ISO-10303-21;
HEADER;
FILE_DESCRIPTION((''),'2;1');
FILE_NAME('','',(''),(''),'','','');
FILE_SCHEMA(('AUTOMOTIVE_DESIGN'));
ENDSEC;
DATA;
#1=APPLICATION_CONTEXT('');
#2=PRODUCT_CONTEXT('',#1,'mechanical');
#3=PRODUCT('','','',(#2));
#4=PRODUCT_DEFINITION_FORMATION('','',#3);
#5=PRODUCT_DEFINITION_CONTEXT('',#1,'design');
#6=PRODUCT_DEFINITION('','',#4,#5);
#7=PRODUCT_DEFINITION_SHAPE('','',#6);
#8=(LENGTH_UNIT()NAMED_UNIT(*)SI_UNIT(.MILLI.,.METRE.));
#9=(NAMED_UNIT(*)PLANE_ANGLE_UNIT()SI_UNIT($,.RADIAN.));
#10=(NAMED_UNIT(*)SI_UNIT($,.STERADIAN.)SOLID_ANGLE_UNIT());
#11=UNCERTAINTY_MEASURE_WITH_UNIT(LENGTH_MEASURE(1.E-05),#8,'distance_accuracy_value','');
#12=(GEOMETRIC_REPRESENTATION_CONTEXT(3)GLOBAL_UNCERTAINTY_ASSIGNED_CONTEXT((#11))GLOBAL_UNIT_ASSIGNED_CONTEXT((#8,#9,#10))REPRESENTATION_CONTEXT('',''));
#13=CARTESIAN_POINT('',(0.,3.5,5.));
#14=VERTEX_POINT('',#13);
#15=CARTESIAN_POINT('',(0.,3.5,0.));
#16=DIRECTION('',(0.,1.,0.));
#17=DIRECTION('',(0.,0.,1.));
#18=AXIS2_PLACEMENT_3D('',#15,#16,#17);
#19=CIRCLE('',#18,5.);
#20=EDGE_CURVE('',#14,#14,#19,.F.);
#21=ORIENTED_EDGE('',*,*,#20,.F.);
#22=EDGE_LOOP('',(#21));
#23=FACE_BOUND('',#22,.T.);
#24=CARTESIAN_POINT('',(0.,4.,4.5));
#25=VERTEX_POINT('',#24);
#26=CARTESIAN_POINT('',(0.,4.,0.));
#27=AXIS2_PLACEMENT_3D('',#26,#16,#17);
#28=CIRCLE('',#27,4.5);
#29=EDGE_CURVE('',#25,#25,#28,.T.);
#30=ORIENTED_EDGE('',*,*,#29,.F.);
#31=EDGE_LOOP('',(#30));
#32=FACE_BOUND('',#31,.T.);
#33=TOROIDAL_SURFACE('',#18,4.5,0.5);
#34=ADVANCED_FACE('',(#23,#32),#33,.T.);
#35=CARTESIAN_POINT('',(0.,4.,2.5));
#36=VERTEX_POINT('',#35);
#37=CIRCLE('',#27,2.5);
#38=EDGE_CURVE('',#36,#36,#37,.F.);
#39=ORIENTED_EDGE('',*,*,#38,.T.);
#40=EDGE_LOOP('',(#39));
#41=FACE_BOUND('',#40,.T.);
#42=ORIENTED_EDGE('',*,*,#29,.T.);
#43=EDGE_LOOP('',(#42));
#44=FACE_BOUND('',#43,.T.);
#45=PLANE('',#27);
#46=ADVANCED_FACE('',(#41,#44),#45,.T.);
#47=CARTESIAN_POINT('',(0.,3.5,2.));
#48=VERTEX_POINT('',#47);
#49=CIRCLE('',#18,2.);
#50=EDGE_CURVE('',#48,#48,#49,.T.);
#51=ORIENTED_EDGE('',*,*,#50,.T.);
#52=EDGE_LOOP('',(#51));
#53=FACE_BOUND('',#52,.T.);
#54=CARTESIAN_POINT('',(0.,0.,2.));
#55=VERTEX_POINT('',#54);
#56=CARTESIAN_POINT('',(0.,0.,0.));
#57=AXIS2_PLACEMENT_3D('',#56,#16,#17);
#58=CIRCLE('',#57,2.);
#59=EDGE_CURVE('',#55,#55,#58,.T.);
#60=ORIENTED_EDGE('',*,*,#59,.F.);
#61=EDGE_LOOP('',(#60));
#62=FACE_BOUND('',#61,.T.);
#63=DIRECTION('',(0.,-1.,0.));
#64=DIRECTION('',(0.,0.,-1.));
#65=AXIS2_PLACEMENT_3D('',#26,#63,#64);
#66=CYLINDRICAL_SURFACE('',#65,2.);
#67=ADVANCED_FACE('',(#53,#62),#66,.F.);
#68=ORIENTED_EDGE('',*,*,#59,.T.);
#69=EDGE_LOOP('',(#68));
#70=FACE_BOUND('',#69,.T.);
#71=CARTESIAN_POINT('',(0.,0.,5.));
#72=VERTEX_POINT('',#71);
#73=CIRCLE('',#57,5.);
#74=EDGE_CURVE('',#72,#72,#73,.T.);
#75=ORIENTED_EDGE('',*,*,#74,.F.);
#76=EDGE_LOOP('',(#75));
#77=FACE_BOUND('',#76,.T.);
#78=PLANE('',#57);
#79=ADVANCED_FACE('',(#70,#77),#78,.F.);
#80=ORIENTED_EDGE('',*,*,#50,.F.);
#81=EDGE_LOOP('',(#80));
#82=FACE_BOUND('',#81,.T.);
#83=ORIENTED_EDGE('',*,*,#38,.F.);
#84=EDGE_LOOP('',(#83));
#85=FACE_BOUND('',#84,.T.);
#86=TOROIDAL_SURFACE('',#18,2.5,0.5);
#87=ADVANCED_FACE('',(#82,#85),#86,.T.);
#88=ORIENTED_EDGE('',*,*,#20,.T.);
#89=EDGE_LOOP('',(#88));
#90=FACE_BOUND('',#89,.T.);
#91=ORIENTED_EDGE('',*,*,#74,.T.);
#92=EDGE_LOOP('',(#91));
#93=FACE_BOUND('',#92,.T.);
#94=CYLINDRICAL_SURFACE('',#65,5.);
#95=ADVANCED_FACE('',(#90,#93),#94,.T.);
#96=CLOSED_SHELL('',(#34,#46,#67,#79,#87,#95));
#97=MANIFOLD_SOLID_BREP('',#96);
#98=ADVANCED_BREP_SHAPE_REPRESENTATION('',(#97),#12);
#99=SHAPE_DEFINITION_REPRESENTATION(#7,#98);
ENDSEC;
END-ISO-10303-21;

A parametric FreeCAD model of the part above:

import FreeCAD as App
import Part
import Sketcher


def edges_at(feature, points):
    """Names of the edges that pass closest to the given points."""
    edges = feature.Shape.Edges
    near = lambda p: min(range(len(edges)), key=lambda i: edges[i].distToShape(Part.Vertex(*p))[0])
    return sorted({f"Edge{near(p) + 1}" for p in points})

doc = App.newDocument("Part")
body = doc.addObject("PartDesign::Body", "Body")

# Sketch on XZ plane
sketch1 = doc.addObject("Sketcher::SketchObject", "Sketch")
body.addObject(sketch1)
sketch1.AttachmentSupport = (doc.XZ_Plane, [""])
sketch1.MapMode = "FlatFace"
sketch1.addGeometry(Part.Circle(App.Vector(0, 0, 0), App.Vector(0, 0, 1), 5), False)
sketch1.addGeometry(Part.Circle(App.Vector(0, 0, 0), App.Vector(0, 0, 1), 2), False)
sketch1.addConstraint(Sketcher.Constraint("Coincident", 0, 3, -1, 1))
sketch1.addConstraint(Sketcher.Constraint("Coincident", 1, 3, -1, 1))
sketch1.addConstraint(Sketcher.Constraint("Diameter", 0, 10.0))
sketch1.addConstraint(Sketcher.Constraint("Diameter", 1, 4.0))
pad1 = doc.addObject("PartDesign::Pad", "Pad")
body.addObject(pad1)
pad1.Profile = sketch1
pad1.Length = 4
pad1.Reversed = True
doc.recompute()

fillet = doc.addObject("PartDesign::Fillet", "Fillet")
body.addObject(fillet)
fillet.Base = (pad1, edges_at(pad1, [(-5, 4, 0), (-2, 4, 0)]))
fillet.Radius = 0.5

doc.recompute()
